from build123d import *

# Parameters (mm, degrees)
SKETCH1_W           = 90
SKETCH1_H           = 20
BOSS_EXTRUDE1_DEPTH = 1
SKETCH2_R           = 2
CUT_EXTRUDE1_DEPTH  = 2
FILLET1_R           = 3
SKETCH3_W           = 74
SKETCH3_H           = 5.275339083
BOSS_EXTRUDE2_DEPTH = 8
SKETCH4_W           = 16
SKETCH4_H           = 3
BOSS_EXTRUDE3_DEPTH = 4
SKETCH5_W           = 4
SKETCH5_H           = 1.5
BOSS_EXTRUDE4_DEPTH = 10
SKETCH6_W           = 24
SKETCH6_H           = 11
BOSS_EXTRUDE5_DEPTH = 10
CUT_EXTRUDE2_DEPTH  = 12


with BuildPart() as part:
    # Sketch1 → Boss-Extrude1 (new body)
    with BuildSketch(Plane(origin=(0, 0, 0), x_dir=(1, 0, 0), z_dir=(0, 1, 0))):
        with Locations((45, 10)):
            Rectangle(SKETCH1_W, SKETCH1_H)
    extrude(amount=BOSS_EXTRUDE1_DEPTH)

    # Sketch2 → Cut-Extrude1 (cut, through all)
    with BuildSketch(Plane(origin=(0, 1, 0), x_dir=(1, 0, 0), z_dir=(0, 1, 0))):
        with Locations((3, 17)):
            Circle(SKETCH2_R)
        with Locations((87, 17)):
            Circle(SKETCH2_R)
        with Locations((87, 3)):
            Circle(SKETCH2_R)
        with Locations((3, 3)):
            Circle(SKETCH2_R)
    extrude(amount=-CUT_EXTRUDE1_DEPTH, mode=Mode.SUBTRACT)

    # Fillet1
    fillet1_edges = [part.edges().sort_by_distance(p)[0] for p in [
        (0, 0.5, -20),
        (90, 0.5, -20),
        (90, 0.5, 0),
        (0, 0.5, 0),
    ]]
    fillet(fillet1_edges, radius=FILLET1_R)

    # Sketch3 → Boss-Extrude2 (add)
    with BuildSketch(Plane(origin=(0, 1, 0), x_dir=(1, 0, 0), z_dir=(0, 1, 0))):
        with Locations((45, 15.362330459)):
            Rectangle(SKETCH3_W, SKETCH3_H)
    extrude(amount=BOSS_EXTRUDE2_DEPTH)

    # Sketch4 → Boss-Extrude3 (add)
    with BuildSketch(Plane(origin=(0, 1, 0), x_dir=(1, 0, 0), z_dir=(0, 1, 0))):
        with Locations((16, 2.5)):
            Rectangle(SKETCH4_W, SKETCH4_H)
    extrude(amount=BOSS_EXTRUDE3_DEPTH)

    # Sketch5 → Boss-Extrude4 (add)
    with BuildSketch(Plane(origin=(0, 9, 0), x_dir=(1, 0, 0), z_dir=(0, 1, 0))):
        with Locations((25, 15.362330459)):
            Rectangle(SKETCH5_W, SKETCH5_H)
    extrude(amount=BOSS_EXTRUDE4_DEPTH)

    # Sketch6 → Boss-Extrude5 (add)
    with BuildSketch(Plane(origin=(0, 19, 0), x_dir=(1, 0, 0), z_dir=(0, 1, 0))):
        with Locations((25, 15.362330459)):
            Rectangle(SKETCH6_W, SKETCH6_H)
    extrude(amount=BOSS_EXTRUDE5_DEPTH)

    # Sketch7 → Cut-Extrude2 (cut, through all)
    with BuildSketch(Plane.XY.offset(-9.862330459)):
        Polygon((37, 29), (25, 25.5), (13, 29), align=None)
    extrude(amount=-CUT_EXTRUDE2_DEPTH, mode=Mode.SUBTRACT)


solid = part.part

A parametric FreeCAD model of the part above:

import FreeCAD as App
import Part
import Sketcher
from FreeCAD import Vector


def edges_at(feature, points):
    """Names of the edges that pass closest to the given points."""
    edges = feature.Shape.Edges
    near = lambda p: min(range(len(edges)), key=lambda i: edges[i].distToShape(Part.Vertex(*p))[0])
    return sorted({f"Edge{near(p) + 1}" for p in points})

doc = App.newDocument("Part")
body = doc.addObject("PartDesign::Body", "Body")

sketch1 = body.newObject("Sketcher::SketchObject", "Sketch")
sketch1.AttachmentSupport = (doc.getObject("XZ_Plane"), [""])
sketch1.MapMode = "FlatFace"
sketch1.addGeometry([
    Part.LineSegment(Vector(0, -20, 0), Vector(0, 0, 0)),
    Part.LineSegment(Vector(0, 0, 0), Vector(90, 0, 0)),
    Part.LineSegment(Vector(90, 0, 0), Vector(90, -20, 0)),
    Part.LineSegment(Vector(90, -20, 0), Vector(0, -20, 0)),
], False)
sketch1.addConstraint([
    Sketcher.Constraint("Coincident", 0, 2, 1, 1),
    Sketcher.Constraint("Coincident", 1, 2, 2, 1),
    Sketcher.Constraint("Coincident", 2, 2, 3, 1),
    Sketcher.Constraint("Coincident", 3, 2, 0, 1),
    Sketcher.Constraint("Vertical", 0),
    Sketcher.Constraint("Horizontal", 1),
    Sketcher.Constraint("Vertical", 2),
    Sketcher.Constraint("Horizontal", 3),
    Sketcher.Constraint("Coincident", 0, 2, -1, 1),
    Sketcher.Constraint("DistanceX", 1, 1, 1, 2, 90.0),
    Sketcher.Constraint("DistanceY", 0, 1, 0, 2, 20.0),
])
pad1 = body.newObject("PartDesign::Pad", "Pad")
pad1.Profile = sketch1
pad1.Length = 1
pad1.Reversed = True

sketch2 = body.newObject("Sketcher::SketchObject", "Sketch001")
sketch2.AttachmentSupport = (doc.getObject("XZ_Plane"), [""])
sketch2.MapMode = "FlatFace"
sketch2.AttachmentOffset = App.Placement(Vector(0, 0, -1), App.Rotation())
sketch2.addGeometry([
    Part.Circle(Vector(3, -17, 0), Vector(0, 0, 1), 2),
    Part.Circle(Vector(87, -17, 0), Vector(0, 0, 1), 2),
    Part.Circle(Vector(87, -3, 0), Vector(0, 0, 1), 2),
    Part.Circle(Vector(3, -3, 0), Vector(0, 0, 1), 2),
], False)
sketch2.addConstraint([
    Sketcher.Constraint("Equal", 0, 1),
    Sketcher.Constraint("Equal", 1, 2),
    Sketcher.Constraint("Equal", 2, 3),
    Sketcher.Constraint("Horizontal", 0, 3, 1, 3),
    Sketcher.Constraint("Horizontal", 2, 3, 3, 3),
    Sketcher.Constraint("Vertical", 1, 3, 2, 3),
    Sketcher.Constraint("Vertical", 0, 3, 3, 3),
    Sketcher.Constraint("Diameter", 0, 4.0),
    Sketcher.Constraint("DistanceX", -1, 1, 0, 3, 3.0),
    Sketcher.Constraint("DistanceY", 0, 3, -1, 1, 17.0),
    Sketcher.Constraint("DistanceX", -1, 1, 1, 3, 87.0),
    Sketcher.Constraint("DistanceY", 2, 3, -1, 1, 3.0),
])
pocket1 = body.newObject("PartDesign::Pocket", "Pocket")
pocket1.Profile = sketch2
pocket1.Type = "ThroughAll"
pocket1.Reversed = True
doc.recompute()

fillet = body.newObject("PartDesign::Fillet", "Fillet")
fillet.Base = (pocket1, edges_at(pocket1, [
    (0, 0.5, -20),
    (90, 0.5, -20),
    (90, 0.5, 0),
    (0, 0.5, 0),
]))
fillet.Radius = 3

sketch3 = body.newObject("Sketcher::SketchObject", "Sketch002")
sketch3.AttachmentSupport = (doc.getObject("XZ_Plane"), [""])
sketch3.MapMode = "FlatFace"
sketch3.AttachmentOffset = App.Placement(Vector(0, 0, -1), App.Rotation())
sketch3.addGeometry([
    Part.LineSegment(Vector(8, -18, 0), Vector(8, -13, 0)),
    Part.LineSegment(Vector(8, -13, 0), Vector(82, -13, 0)),
    Part.LineSegment(Vector(82, -13, 0), Vector(82, -18, 0)),
    Part.LineSegment(Vector(82, -18, 0), Vector(8, -18, 0)),
], False)
sketch3.addConstraint([
    Sketcher.Constraint("Coincident", 0, 2, 1, 1),
    Sketcher.Constraint("Coincident", 1, 2, 2, 1),
    Sketcher.Constraint("Coincident", 2, 2, 3, 1),
    Sketcher.Constraint("Coincident", 3, 2, 0, 1),
    Sketcher.Constraint("Vertical", 0),
    Sketcher.Constraint("Horizontal", 1),
    Sketcher.Constraint("Vertical", 2),
    Sketcher.Constraint("Horizontal", 3),
    Sketcher.Constraint("DistanceX", 1, 1, 1, 2, 74.0),
    Sketcher.Constraint("DistanceX", -1, 1, 0, 2, 8.0),
    Sketcher.Constraint("DistanceY", 2, 2, -1, 1, 18.0),
    Sketcher.Constraint("DistanceY", 0, 1, 0, 2, 5.275339),
])
pad2 = body.newObject("PartDesign::Pad", "Pad001")
pad2.Profile = sketch3
pad2.Length = 8
pad2.Reversed = True

sketch4 = body.newObject("Sketcher::SketchObject", "Sketch003")
sketch4.AttachmentSupport = (doc.getObject("XZ_Plane"), [""])
sketch4.MapMode = "FlatFace"
sketch4.AttachmentOffset = App.Placement(Vector(0, 0, -1), App.Rotation())
sketch4.addGeometry([
    Part.LineSegment(Vector(8, -4, 0), Vector(8, -1, 0)),
    Part.LineSegment(Vector(8, -1, 0), Vector(24, -1, 0)),
    Part.LineSegment(Vector(24, -1, 0), Vector(24, -4, 0)),
    Part.LineSegment(Vector(24, -4, 0), Vector(8, -4, 0)),
], False)
sketch4.addConstraint([
    Sketcher.Constraint("Coincident", 0, 2, 1, 1),
    Sketcher.Constraint("Coincident", 1, 2, 2, 1),
    Sketcher.Constraint("Coincident", 2, 2, 3, 1),
    Sketcher.Constraint("Coincident", 3, 2, 0, 1),
    Sketcher.Constraint("Vertical", 0),
    Sketcher.Constraint("Horizontal", 1),
    Sketcher.Constraint("Vertical", 2),
    Sketcher.Constraint("Horizontal", 3),
    Sketcher.Constraint("DistanceX", 1, 1, 1, 2, 16.0),
    Sketcher.Constraint("DistanceY", 0, 1, 0, 2, 3.0),
    Sketcher.Constraint("DistanceX", -1, 1, 0, 2, 8.0),
    Sketcher.Constraint("DistanceY", 0, 2, -1, 1, 1.0),
])
pad3 = body.newObject("PartDesign::Pad", "Pad002")
pad3.Profile = sketch4
pad3.Length = 4
pad3.Reversed = True

sketch5 = body.newObject("Sketcher::SketchObject", "Sketch004")
sketch5.AttachmentSupport = (doc.getObject("XZ_Plane"), [""])
sketch5.MapMode = "FlatFace"
sketch5.AttachmentOffset = App.Placement(Vector(0, 0, -9), App.Rotation())
sketch5.addGeometry([
    Part.LineSegment(Vector(23, -16.1, 0), Vector(23, -14.6, 0)),
    Part.LineSegment(Vector(23, -14.6, 0), Vector(27, -14.6, 0)),
    Part.LineSegment(Vector(27, -14.6, 0), Vector(27, -16.1, 0)),
    Part.LineSegment(Vector(27, -16.1, 0), Vector(23, -16.1, 0)),
], False)
sketch5.addConstraint([
    Sketcher.Constraint("Coincident", 0, 2, 1, 1),
    Sketcher.Constraint("Coincident", 1, 2, 2, 1),
    Sketcher.Constraint("Coincident", 2, 2, 3, 1),
    Sketcher.Constraint("Coincident", 3, 2, 0, 1),
    Sketcher.Constraint("Vertical", 0),
    Sketcher.Constraint("Horizontal", 1),
    Sketcher.Constraint("Vertical", 2),
    Sketcher.Constraint("Horizontal", 3),
    Sketcher.Constraint("DistanceX", 1, 1, 1, 2, 4.0),
    Sketcher.Constraint("DistanceY", 0, 1, 0, 2, 1.5),
    Sketcher.Constraint("DistanceX", -1, 1, 0, 2, 23.0),
    Sketcher.Constraint("DistanceY", 0, 2, -1, 1, 14.61233),
])
pad4 = body.newObject("PartDesign::Pad", "Pad003")
pad4.Profile = sketch5
pad4.Length = 10
pad4.Reversed = True

sketch6 = body.newObject("Sketcher::SketchObject", "Sketch005")
sketch6.AttachmentSupport = (doc.getObject("XZ_Plane"), [""])
sketch6.MapMode = "FlatFace"
sketch6.AttachmentOffset = App.Placement(Vector(0, 0, -19), App.Rotation())
sketch6.addGeometry([
    Part.LineSegment(Vector(13, -21, 0), Vector(13, -10, 0)),
    Part.LineSegment(Vector(13, -10, 0), Vector(37, -10, 0)),
    Part.LineSegment(Vector(37, -10, 0), Vector(37, -21, 0)),
    Part.LineSegment(Vector(37, -21, 0), Vector(13, -21, 0)),
], False)
sketch6.addConstraint([
    Sketcher.Constraint("Coincident", 0, 2, 1, 1),
    Sketcher.Constraint("Coincident", 1, 2, 2, 1),
    Sketcher.Constraint("Coincident", 2, 2, 3, 1),
    Sketcher.Constraint("Coincident", 3, 2, 0, 1),
    Sketcher.Constraint("Vertical", 0),
    Sketcher.Constraint("Horizontal", 1),
    Sketcher.Constraint("Vertical", 2),
    Sketcher.Constraint("Horizontal", 3),
    Sketcher.Constraint("DistanceX", 1, 1, 1, 2, 24.0),
    Sketcher.Constraint("DistanceY", 0, 1, 0, 2, 11.0),
    Sketcher.Constraint("DistanceX", -1, 1, 0, 2, 13.0),
    Sketcher.Constraint("DistanceY", 0, 2, -1, 1, 9.86233),
])
pad5 = body.newObject("PartDesign::Pad", "Pad004")
pad5.Profile = sketch6
pad5.Length = 10
pad5.Reversed = True

sketch7 = body.newObject("Sketcher::SketchObject", "Sketch006")
sketch7.AttachmentSupport = (doc.getObject("XY_Plane"), [""])
sketch7.MapMode = "FlatFace"
sketch7.AttachmentOffset = App.Placement(Vector(0, 0, -9.86233), App.Rotation())
sketch7.addGeometry([
    Part.LineSegment(Vector(25, 26, 0), Vector(37, 29, 0)),
    Part.LineSegment(Vector(37, 29, 0), Vector(13, 29, 0)),
    Part.LineSegment(Vector(13, 29, 0), Vector(25, 26, 0)),
], False)
sketch7.addConstraint([
    Sketcher.Constraint("Coincident", 0, 2, 1, 1),
    Sketcher.Constraint("Coincident", 1, 2, 2, 1),
    Sketcher.Constraint("Coincident", 2, 2, 0, 1),
    Sketcher.Constraint("Horizontal", 1),
    Sketcher.Constraint("Equal", 0, 2),
    Sketcher.Constraint("DistanceX", 1, 2, 1, 1, 24.0),
    Sketcher.Constraint("DistanceX", -1, 1, 0, 2, 37.0),
    Sketcher.Constraint("DistanceY", -1, 1, 0, 2, 29.0),
    Sketcher.Constraint("Distance", 0, 12.5),
])
pocket2 = body.newObject("PartDesign::Pocket", "Pocket001")
pocket2.Profile = sketch7
pocket2.Type = "ThroughAll"

doc.recompute()
